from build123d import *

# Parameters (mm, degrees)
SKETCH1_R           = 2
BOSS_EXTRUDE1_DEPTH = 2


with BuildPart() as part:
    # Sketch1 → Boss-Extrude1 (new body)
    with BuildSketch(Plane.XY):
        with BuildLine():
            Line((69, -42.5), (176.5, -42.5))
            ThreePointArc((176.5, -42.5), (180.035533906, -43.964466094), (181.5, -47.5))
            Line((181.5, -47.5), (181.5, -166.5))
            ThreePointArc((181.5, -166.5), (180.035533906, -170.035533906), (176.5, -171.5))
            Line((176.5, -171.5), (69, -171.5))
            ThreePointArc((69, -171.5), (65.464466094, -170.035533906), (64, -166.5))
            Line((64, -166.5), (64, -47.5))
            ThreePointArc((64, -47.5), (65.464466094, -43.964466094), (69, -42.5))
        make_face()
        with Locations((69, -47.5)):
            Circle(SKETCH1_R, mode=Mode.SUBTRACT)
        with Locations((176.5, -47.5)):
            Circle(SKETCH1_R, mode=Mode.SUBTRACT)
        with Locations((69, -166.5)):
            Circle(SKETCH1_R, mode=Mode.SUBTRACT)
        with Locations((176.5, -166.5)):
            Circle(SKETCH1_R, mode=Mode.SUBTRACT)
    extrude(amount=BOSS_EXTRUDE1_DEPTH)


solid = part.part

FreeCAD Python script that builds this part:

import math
import FreeCAD as App
import Part
import Sketcher

V = App.Vector
Q = App.Units.Quantity

doc = App.newDocument("Part")
params = doc.addObject("Spreadsheet::Sheet", "Params")
for row, (alias, value) in enumerate([
    ("sketch1_diameter", "4 mm"),
    ("sketch1_radius", "5 mm"),
    ("sketch1_height", "119 mm"),
    ("sketch1_width", "107.5 mm"),
    ("pad1_length", "2 mm"),
], start=1):
    params.set(f"A{row}", alias)
    params.set(f"B{row}", "=" + value)
    params.setAlias(f"B{row}", alias)

body = doc.addObject("PartDesign::Body", "Body")

# Sketch on XY plane
sketch1 = body.newObject("Sketcher::SketchObject", "Sketch")
sketch1.AttachmentSupport = (doc.getObject("XY_Plane"), [""])
sketch1.MapMode = "FlatFace"
sketch1.addGeometry([
    Part.LineSegment(V(176.5, -42.5, 0), V(69, -42.5, 0)),  # 0
    Part.ArcOfCircle(Part.Circle(V(69, -47.5, 0), V(0, 0, 1), 5), math.radians(90), math.radians(180)),  # 1
    Part.LineSegment(V(64, -47.5, 0), V(64, -166.5, 0)),  # 2
    Part.ArcOfCircle(Part.Circle(V(69, -166.5, 0), V(0, 0, 1), 5), math.radians(180), math.radians(270)),  # 3
    Part.LineSegment(V(69, -171.5, 0), V(176.5, -171.5, 0)),  # 4
    Part.ArcOfCircle(Part.Circle(V(176.5, -166.5, 0), V(0, 0, 1), 5), math.radians(-90), math.radians(0)),  # 5
    Part.LineSegment(V(181.5, -166.5, 0), V(181.5, -47.5, 0)),  # 6
    Part.ArcOfCircle(Part.Circle(V(176.5, -47.5, 0), V(0, 0, 1), 5), math.radians(0), math.radians(90)),  # 7
    Part.Circle(V(176.5, -166.5, 0), V(0, 0, 1), 2),  # 8
    Part.Circle(V(69, -166.5, 0), V(0, 0, 1), 2),  # 9
    Part.Circle(V(176.5, -47.5, 0), V(0, 0, 1), 2),  # 10
    Part.Circle(V(69, -47.5, 0), V(0, 0, 1), 2),  # 11
], False)
sketch1.addConstraint([
    Sketcher.Constraint("Tangent", 0, 2, 1, 1),
    Sketcher.Constraint("Tangent", 1, 2, 2, 1),
    Sketcher.Constraint("Tangent", 2, 2, 3, 1),
    Sketcher.Constraint("Tangent", 3, 2, 4, 1),
    Sketcher.Constraint("Tangent", 4, 2, 5, 1),
    Sketcher.Constraint("Tangent", 5, 2, 6, 1),
    Sketcher.Constraint("Tangent", 6, 2, 7, 1),
    Sketcher.Constraint("Tangent", 7, 2, 0, 1),
    Sketcher.Constraint("Horizontal", 0),
    Sketcher.Constraint("Vertical", 2),
    Sketcher.Constraint("Horizontal", 4),
    Sketcher.Constraint("Vertical", 6),
    Sketcher.Constraint("Coincident", 8, 3, 5, 3),
    Sketcher.Constraint("Coincident", 9, 3, 3, 3),
    Sketcher.Constraint("Coincident", 10, 3, 7, 3),
    Sketcher.Constraint("Coincident", 11, 3, 1, 3),
    Sketcher.Constraint("Equal", 1, 3),
    Sketcher.Constraint("Equal", 3, 5),
    Sketcher.Constraint("Equal", 5, 7),
    Sketcher.Constraint("Equal", 8, 9),
    Sketcher.Constraint("Equal", 9, 10),
    Sketcher.Constraint("Equal", 10, 11),
    Sketcher.Constraint("Diameter", 8, Q("4 mm")),
    Sketcher.Constraint("Radius", 1, Q("5 mm")),
    Sketcher.Constraint("DistanceY", 2, 2, 2, 1, Q("119 mm")),
    Sketcher.Constraint("DistanceX", 0, 2, 0, 1, Q("107.5 mm")),
    Sketcher.Constraint("DistanceX", -1, 1, 1, 3, Q("69 mm")),
    Sketcher.Constraint("DistanceY", 1, 3, -1, 1, Q("47.5 mm")),
])
sketch1.setExpression("Constraints[22]", "Params.sketch1_diameter")
sketch1.setExpression("Constraints[23]", "Params.sketch1_radius")
sketch1.setExpression("Constraints[24]", "Params.sketch1_height")
sketch1.setExpression("Constraints[25]", "Params.sketch1_width")
pad1 = body.newObject("PartDesign::Pad", "Pad")
pad1.Profile = sketch1
pad1.setExpression("Length", "Params.pad1_length")

doc.recompute()
